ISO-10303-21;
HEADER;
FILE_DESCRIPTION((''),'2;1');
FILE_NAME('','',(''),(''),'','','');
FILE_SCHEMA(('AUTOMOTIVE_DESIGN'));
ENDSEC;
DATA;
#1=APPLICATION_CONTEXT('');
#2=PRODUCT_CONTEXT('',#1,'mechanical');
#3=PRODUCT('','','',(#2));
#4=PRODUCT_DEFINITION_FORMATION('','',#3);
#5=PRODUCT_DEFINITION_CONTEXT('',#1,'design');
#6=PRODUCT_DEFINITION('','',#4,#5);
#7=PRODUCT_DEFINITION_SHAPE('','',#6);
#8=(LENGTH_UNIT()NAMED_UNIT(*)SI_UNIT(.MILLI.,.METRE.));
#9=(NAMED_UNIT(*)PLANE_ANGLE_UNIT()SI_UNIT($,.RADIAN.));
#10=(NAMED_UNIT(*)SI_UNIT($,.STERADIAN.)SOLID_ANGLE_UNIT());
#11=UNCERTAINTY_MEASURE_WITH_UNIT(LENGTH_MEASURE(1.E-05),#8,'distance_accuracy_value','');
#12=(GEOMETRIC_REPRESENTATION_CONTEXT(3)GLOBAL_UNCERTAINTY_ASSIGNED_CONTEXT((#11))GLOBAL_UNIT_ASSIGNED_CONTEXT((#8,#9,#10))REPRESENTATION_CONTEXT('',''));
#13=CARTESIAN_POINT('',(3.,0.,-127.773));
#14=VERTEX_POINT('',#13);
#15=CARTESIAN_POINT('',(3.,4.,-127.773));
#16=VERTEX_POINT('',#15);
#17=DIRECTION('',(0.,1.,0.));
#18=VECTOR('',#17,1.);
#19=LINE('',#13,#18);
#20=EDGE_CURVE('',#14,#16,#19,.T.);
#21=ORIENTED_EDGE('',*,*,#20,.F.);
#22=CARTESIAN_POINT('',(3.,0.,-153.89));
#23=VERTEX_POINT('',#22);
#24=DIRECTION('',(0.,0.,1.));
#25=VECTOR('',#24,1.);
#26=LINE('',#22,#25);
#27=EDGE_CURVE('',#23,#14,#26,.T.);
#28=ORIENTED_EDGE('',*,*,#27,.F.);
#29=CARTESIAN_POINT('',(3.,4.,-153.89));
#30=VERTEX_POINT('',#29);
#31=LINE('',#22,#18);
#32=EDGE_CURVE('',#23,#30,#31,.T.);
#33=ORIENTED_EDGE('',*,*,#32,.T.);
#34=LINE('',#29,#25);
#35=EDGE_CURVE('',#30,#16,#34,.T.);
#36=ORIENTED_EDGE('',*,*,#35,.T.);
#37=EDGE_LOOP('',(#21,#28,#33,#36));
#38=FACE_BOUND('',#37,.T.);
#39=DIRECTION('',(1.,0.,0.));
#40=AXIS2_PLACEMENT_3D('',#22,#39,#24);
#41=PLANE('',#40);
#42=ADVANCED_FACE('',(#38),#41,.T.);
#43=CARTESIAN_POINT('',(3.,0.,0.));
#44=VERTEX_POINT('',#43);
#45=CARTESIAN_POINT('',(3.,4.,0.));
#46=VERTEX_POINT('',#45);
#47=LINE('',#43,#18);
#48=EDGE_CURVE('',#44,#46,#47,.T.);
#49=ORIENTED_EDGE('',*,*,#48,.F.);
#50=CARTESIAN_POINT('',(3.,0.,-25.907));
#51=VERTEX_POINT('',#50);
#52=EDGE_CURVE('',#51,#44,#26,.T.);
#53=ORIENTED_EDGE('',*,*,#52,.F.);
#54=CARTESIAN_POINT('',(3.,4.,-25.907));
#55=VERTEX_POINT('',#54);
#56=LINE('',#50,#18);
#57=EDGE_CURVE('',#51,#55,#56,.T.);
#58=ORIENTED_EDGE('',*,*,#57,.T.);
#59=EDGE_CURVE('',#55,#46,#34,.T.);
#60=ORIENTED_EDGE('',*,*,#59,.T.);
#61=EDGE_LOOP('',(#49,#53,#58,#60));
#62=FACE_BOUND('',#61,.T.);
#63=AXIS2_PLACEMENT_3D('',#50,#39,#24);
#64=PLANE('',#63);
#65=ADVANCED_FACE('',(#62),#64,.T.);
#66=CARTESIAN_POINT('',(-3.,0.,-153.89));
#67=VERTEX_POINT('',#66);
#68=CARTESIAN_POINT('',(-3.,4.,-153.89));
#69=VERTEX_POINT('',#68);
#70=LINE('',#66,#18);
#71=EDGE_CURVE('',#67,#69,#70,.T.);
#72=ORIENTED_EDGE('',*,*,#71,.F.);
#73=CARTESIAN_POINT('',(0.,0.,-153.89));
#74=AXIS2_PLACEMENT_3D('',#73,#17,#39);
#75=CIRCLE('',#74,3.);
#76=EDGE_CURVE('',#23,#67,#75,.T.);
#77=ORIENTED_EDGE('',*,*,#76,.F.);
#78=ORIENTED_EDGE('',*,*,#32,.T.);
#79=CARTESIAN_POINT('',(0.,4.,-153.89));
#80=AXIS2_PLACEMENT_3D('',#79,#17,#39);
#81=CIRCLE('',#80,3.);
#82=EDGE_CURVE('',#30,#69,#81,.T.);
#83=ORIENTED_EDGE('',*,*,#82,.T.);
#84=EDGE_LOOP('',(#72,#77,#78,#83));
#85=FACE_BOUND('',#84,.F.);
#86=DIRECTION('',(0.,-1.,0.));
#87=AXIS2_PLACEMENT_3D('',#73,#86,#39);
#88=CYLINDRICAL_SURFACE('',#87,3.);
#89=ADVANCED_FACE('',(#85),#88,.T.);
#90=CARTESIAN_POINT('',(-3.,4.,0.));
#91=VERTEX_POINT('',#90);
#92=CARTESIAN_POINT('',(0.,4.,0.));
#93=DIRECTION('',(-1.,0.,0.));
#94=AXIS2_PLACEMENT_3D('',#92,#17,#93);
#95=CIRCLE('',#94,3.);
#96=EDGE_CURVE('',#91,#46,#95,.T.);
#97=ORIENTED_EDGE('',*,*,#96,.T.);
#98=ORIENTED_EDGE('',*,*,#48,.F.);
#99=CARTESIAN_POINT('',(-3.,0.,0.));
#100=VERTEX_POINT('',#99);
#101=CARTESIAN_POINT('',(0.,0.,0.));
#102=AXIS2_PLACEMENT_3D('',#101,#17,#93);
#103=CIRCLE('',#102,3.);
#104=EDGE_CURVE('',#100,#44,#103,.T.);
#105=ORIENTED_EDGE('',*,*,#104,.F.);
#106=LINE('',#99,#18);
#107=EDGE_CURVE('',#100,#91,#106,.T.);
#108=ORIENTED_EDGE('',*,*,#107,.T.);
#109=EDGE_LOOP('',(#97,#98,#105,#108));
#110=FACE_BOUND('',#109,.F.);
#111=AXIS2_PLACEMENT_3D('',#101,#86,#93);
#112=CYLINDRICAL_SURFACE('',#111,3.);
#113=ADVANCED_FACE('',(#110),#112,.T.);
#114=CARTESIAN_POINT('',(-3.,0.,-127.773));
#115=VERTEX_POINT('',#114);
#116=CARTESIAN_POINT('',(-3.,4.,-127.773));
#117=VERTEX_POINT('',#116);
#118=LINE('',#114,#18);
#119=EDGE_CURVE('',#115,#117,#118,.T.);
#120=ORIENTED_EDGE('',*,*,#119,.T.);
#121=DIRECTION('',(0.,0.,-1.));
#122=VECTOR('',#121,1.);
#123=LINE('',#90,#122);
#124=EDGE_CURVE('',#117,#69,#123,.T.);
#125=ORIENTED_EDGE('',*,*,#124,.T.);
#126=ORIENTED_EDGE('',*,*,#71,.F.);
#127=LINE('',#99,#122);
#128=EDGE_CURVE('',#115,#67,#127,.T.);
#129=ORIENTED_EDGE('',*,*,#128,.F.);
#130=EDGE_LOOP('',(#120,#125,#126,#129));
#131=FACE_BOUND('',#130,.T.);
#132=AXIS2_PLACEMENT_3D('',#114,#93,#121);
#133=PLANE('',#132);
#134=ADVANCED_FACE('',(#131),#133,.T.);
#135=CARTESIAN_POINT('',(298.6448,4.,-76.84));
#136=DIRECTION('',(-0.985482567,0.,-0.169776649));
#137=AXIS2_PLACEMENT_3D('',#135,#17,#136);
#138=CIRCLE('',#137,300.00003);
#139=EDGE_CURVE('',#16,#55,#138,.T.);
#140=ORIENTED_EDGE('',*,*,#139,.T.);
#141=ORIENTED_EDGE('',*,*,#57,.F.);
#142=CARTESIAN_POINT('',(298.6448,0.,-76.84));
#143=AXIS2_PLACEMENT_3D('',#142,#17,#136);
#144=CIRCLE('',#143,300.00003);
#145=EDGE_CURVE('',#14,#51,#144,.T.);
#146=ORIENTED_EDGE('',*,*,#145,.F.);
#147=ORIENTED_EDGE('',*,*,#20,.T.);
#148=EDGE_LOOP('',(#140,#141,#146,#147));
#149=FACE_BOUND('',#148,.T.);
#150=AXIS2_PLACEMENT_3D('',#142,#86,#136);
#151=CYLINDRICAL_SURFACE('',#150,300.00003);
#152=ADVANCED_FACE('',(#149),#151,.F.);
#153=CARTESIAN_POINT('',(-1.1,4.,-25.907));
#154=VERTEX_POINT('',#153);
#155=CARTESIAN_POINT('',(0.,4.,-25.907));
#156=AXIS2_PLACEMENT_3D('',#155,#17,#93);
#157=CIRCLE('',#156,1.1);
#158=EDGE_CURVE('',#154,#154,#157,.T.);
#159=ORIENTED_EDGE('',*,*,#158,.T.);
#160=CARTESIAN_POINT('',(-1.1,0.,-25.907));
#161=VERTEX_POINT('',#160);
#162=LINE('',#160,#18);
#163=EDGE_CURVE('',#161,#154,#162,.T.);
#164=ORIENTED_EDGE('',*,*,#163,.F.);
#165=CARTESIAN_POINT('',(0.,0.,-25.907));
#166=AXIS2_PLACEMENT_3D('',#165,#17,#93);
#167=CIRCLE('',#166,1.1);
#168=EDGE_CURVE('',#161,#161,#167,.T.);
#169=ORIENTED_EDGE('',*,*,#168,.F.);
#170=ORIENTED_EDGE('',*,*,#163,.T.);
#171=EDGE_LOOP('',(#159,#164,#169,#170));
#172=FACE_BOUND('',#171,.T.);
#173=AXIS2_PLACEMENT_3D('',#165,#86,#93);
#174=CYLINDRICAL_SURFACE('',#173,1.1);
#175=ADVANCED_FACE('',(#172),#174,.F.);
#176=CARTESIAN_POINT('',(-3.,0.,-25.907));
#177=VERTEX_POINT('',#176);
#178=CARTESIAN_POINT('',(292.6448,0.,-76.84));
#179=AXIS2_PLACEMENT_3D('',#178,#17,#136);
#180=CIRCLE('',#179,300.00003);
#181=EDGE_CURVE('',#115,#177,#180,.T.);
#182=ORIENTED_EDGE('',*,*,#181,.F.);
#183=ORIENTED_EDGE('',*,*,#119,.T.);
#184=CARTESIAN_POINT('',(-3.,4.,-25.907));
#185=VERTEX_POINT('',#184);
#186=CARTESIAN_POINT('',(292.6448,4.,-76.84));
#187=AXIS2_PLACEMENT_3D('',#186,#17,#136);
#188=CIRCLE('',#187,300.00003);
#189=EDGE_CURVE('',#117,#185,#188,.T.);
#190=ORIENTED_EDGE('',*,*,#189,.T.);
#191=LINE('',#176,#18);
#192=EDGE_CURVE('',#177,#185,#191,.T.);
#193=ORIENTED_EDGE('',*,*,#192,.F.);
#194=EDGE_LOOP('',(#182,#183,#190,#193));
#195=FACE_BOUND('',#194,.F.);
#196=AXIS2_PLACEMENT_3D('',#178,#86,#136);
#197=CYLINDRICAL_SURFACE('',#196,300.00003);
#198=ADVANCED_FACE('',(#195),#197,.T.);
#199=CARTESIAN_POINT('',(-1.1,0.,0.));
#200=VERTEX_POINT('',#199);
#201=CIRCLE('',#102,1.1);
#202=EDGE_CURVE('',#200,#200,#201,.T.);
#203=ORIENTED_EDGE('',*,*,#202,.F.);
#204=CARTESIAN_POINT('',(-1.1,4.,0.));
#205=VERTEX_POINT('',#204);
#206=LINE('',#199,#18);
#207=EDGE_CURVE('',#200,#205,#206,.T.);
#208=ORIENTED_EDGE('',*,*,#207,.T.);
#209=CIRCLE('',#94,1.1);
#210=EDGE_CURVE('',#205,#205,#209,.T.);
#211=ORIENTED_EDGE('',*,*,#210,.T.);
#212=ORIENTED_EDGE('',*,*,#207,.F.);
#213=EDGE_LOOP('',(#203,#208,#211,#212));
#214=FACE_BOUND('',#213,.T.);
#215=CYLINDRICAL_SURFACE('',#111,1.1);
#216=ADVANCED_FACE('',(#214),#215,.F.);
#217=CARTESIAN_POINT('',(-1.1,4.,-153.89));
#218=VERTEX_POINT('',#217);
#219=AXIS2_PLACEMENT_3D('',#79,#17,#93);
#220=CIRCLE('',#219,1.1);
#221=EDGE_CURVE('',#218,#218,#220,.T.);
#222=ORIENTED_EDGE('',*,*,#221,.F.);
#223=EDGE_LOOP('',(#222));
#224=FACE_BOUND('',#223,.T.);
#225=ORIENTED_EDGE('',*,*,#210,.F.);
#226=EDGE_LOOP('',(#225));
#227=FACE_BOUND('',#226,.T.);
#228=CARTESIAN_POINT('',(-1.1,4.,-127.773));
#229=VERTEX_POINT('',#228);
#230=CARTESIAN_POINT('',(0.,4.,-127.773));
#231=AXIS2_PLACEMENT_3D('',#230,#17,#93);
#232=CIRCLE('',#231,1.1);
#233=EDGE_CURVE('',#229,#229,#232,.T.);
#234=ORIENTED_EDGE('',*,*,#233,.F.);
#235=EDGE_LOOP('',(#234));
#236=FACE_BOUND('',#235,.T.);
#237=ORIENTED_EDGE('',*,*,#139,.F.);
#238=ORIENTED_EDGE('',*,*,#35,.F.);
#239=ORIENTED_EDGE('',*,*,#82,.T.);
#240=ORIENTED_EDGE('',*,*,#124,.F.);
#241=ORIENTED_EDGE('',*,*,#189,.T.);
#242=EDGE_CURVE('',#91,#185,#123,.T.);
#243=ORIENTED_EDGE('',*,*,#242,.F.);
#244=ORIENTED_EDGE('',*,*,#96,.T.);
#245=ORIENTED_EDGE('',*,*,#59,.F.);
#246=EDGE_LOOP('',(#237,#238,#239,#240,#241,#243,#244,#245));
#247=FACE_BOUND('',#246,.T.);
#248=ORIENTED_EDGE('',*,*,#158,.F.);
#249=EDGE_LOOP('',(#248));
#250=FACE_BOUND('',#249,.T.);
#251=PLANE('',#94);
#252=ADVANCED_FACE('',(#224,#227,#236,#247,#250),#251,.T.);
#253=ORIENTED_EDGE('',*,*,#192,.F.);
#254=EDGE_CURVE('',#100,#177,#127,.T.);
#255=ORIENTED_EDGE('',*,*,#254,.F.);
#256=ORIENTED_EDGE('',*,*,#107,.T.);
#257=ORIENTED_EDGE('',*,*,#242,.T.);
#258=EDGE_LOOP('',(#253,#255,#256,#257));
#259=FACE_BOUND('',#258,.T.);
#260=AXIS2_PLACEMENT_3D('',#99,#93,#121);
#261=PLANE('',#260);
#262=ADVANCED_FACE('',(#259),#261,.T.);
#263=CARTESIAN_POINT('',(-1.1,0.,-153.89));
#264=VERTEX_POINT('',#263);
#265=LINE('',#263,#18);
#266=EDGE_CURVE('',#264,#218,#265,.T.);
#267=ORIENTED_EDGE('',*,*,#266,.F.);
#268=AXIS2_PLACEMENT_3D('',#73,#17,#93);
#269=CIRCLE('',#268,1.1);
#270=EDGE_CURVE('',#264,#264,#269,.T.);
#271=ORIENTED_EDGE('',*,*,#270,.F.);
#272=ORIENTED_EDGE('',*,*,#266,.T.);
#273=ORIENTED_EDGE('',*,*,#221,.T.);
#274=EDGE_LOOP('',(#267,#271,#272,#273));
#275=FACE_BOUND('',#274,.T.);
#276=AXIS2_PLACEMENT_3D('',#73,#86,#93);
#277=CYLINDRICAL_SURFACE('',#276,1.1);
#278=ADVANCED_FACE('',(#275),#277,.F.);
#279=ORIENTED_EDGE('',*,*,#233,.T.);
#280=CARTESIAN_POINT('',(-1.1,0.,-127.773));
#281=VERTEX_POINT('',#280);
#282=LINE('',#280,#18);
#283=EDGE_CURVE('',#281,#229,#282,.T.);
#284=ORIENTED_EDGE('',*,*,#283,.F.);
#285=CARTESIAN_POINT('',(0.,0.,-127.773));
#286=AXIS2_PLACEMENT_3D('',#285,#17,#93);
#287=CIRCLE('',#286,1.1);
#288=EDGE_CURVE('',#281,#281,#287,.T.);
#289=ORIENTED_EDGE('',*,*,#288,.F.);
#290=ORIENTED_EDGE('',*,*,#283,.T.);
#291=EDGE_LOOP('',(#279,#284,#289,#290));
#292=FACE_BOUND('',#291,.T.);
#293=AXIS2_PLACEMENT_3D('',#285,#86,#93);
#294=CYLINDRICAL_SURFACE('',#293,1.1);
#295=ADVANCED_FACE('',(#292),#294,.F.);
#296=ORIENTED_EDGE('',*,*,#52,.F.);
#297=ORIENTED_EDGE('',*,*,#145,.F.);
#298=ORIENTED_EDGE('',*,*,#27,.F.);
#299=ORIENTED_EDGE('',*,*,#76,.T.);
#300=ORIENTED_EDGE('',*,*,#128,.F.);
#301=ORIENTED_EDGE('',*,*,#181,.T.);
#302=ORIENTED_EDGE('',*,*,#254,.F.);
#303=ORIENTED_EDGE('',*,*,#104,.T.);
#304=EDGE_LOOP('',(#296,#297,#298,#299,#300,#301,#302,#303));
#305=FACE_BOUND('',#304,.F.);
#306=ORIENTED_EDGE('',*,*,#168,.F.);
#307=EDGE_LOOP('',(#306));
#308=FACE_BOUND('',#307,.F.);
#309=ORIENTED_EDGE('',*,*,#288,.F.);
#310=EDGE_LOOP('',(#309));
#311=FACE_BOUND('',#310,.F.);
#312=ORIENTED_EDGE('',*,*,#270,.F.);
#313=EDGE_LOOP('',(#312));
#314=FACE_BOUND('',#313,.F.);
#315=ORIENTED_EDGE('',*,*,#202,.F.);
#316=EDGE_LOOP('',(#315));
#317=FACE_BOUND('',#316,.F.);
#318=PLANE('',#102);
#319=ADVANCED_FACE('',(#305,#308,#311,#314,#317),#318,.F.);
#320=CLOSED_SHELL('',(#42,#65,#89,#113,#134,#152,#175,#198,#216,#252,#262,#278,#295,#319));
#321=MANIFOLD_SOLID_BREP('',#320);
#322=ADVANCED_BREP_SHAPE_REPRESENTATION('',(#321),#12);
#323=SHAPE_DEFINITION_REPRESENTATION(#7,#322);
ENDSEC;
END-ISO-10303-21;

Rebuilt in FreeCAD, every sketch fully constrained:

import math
import FreeCAD as App
import Part
import Sketcher

doc = App.newDocument("Part")
params = doc.addObject("Spreadsheet::Sheet", "Params")
for row, (alias, value) in enumerate([
    ("sketch1_radius", "3 mm"),
    ("sketch1_radius2", "300 mm"),
    ("sketch1_diameter", "2.2 mm"),
    ("pad1_length", "4 mm"),
], start=1):
    params.set(f"A{row}", alias)
    params.set(f"B{row}", "=" + value)
    params.setAlias(f"B{row}", alias)

body = doc.addObject("PartDesign::Body", "Body")

# Sketch on XZ plane
sketch1 = body.newObject("Sketcher::SketchObject", "Sketch")
sketch1.AttachmentSupport = (doc.getObject("XZ_Plane"), [""])
sketch1.MapMode = "FlatFace"
sketch1.addGeometry([
    Part.LineSegment(App.Vector(-3, -25.9, 0), App.Vector(-3, 0, 0)),  # 0
    Part.ArcOfCircle(Part.Circle(App.Vector(0, 0, 0), App.Vector(0, 0, 1), 3), math.radians(0), math.radians(180)),  # 1
    Part.LineSegment(App.Vector(3, 0, 0), App.Vector(3, -25.9, 0)),  # 2
    Part.ArcOfCircle(Part.Circle(App.Vector(298.6, -76.8, 0), App.Vector(0, 0, 1), 300), math.radians(170.23), math.radians(189.77)),  # 3
    Part.LineSegment(App.Vector(3, -127.8, 0), App.Vector(3, -153.9, 0)),  # 4
    Part.ArcOfCircle(Part.Circle(App.Vector(0, -153.9, 0), App.Vector(0, 0, 1), 3), math.radians(180), math.radians(360)),  # 5
    Part.LineSegment(App.Vector(-3, -153.9, 0), App.Vector(-3, -127.8, 0)),  # 6
    Part.ArcOfCircle(Part.Circle(App.Vector(292.6, -76.8, 0), App.Vector(0, 0, 1), 300), math.radians(170.23), math.radians(189.77)),  # 7
    Part.Circle(App.Vector(0, -153.9, 0), App.Vector(0, 0, 1), 1.1),  # 8
    Part.Circle(App.Vector(0, -127.8, 0), App.Vector(0, 0, 1), 1.1),  # 9
    Part.Circle(App.Vector(0, -25.9, 0), App.Vector(0, 0, 1), 1.1),  # 10
    Part.Circle(App.Vector(0, 0, 0), App.Vector(0, 0, 1), 1.1),  # 11
], False)
sketch1.addConstraint([
    Sketcher.Constraint("Tangent", 0, 2, 1, 2),
    Sketcher.Constraint("Tangent", 1, 1, 2, 1),
    Sketcher.Constraint("Coincident", 2, 2, 3, 1),
    Sketcher.Constraint("Coincident", 3, 2, 4, 1),
    Sketcher.Constraint("Tangent", 4, 2, 5, 2),
    Sketcher.Constraint("Tangent", 5, 1, 6, 1),
    Sketcher.Constraint("Coincident", 6, 2, 7, 2),
    Sketcher.Constraint("Coincident", 7, 1, 0, 1),
    Sketcher.Constraint("Vertical", 0),
    Sketcher.Constraint("Vertical", 2),
    Sketcher.Constraint("Vertical", 4),
    Sketcher.Constraint("Vertical", 6),
    Sketcher.Constraint("Coincident", 1, 3, -1, 1),
    Sketcher.Constraint("Coincident", 11, 3, -1, 1),
    Sketcher.Constraint("Coincident", 8, 3, 5, 3),
    Sketcher.Constraint("Equal", 1, 5),
    Sketcher.Constraint("Equal", 3, 7),
    Sketcher.Constraint("Equal", 8, 9),
    Sketcher.Constraint("Equal", 9, 10),
    Sketcher.Constraint("Equal", 10, 11),
    Sketcher.Constraint("Symmetric", 3, 2, 6, 2, -2),
    Sketcher.Constraint("PointOnObject", 9, 3, -2),
    Sketcher.Constraint("PointOnObject", 10, 3, -2),
    Sketcher.Constraint("Horizontal", 3, 3, 7, 3),
    Sketcher.Constraint("Horizontal", 10, 3, 2, 2),
    Sketcher.Constraint("Horizontal", 9, 3, 3, 2),
    Sketcher.Constraint("Radius", 1, 3.0),
    Sketcher.Constraint("Radius", 3, 300.0),
    Sketcher.Constraint("Diameter", 8, 2.2),
    Sketcher.Constraint("DistanceY", 0, 1, 0, 2, 25.907),
    Sketcher.Constraint("DistanceY", 5, 3, -1, 1, 153.89),
    Sketcher.Constraint("DistanceY", 9, 3, -1, 1, 127.773),
])
sketch1.setExpression("Constraints[26]", "Params.sketch1_radius")
sketch1.setExpression("Constraints[27]", "Params.sketch1_radius2")
sketch1.setExpression("Constraints[28]", "Params.sketch1_diameter")
pad1 = body.newObject("PartDesign::Pad", "Pad")
pad1.Profile = sketch1
pad1.setExpression("Length", "Params.pad1_length")
pad1.Reversed = True

doc.recompute()
